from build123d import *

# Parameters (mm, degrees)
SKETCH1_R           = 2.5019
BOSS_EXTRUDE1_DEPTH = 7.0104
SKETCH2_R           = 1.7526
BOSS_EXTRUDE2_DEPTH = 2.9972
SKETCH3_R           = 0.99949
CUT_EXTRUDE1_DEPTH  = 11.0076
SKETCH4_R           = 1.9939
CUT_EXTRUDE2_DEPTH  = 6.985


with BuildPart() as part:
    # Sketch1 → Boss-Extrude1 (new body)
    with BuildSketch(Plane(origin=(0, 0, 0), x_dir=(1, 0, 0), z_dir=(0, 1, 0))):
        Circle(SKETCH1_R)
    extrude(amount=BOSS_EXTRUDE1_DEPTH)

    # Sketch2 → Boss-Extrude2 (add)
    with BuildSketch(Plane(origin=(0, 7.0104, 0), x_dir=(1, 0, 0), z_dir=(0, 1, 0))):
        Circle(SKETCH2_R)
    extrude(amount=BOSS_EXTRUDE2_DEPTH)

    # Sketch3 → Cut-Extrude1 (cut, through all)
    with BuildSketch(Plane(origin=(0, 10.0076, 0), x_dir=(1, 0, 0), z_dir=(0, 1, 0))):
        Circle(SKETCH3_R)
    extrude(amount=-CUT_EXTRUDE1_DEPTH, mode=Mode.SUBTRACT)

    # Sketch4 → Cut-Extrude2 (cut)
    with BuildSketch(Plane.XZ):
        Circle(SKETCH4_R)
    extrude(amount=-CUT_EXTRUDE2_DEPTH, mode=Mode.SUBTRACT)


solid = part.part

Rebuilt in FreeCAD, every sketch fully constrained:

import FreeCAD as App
import Part
import Sketcher
Q = App.Units.Quantity

doc = App.newDocument("Part")
params = doc.addObject("Spreadsheet::Sheet", "Params")
for row, (alias, value) in enumerate([
    ("sketch1_diameter", "0.197 in"),
    ("pad1_length", "0.276 in"),
    ("sketch2_diameter", "0.138 in"),
    ("pad2_length", "0.118 in"),
    ("sketch4_diameter", "0.157 in"),
    ("pocket2_length", "0.275 in"),
], start=1):
    params.set(f"A{row}", alias)
    params.set(f"B{row}", "=" + value)
    params.setAlias(f"B{row}", alias)

body = doc.addObject("PartDesign::Body", "Body")

sketch1 = doc.addObject("Sketcher::SketchObject", "Sketch")
body.addObject(sketch1)
sketch1.AttachmentSupport = (doc.XZ_Plane, [""])
sketch1.MapMode = "FlatFace"
sketch1.addGeometry(Part.Circle(App.Vector(0, 0, 0), App.Vector(0, 0, 1), 2.5), False)
sketch1.addConstraint([
    Sketcher.Constraint("Coincident", 0, 3, -1, 1),
    Sketcher.Constraint("Diameter", 0, Q("0.197 in")),
])
sketch1.setExpression("Constraints[1]", "Params.sketch1_diameter")
pad1 = doc.addObject("PartDesign::Pad", "Pad")
body.addObject(pad1)
pad1.Profile = sketch1
pad1.setExpression("Length", "Params.pad1_length")
pad1.Reversed = True

sketch2 = doc.addObject("Sketcher::SketchObject", "Sketch001")
body.addObject(sketch2)
sketch2.AttachmentSupport = (doc.XZ_Plane, [""])
sketch2.MapMode = "FlatFace"
sketch2.AttachmentOffset = App.Placement(App.Vector(0, 0, -0.276 * 25.4), App.Rotation())
sketch2.addGeometry(Part.Circle(App.Vector(0, 0, 0), App.Vector(0, 0, 1), 1.8), False)
sketch2.addConstraint([
    Sketcher.Constraint("Coincident", 0, 3, -1, 1),
    Sketcher.Constraint("Diameter", 0, Q("0.138 in")),
])
sketch2.setExpression("Constraints[1]", "Params.sketch2_diameter")
pad2 = doc.addObject("PartDesign::Pad", "Pad001")
body.addObject(pad2)
pad2.Profile = sketch2
pad2.setExpression("Length", "Params.pad2_length")
pad2.Reversed = True

sketch3 = doc.addObject("Sketcher::SketchObject", "Sketch002")
body.addObject(sketch3)
sketch3.AttachmentSupport = (doc.XZ_Plane, [""])
sketch3.MapMode = "FlatFace"
sketch3.AttachmentOffset = App.Placement(App.Vector(0, 0, -0.394 * 25.4), App.Rotation())
sketch3.addGeometry(Part.Circle(App.Vector(0, 0, 0), App.Vector(0, 0, 1), 1), False)
sketch3.addConstraint([
    Sketcher.Constraint("Coincident", 0, 3, -1, 1),
    Sketcher.Constraint("Diameter", 0, Q("0.0787 in")),
])
pocket1 = doc.addObject("PartDesign::Pocket", "Pocket")
body.addObject(pocket1)
pocket1.Profile = sketch3
pocket1.Type = "ThroughAll"
pocket1.Reversed = True

sketch4 = doc.addObject("Sketcher::SketchObject", "Sketch003")
body.addObject(sketch4)
sketch4.AttachmentSupport = (doc.XZ_Plane, [""])
sketch4.MapMode = "FlatFace"
sketch4.addGeometry(Part.Circle(App.Vector(0, 0, 0), App.Vector(0, 0, 1), 2), False)
sketch4.addConstraint([
    Sketcher.Constraint("Coincident", 0, 3, -1, 1),
    Sketcher.Constraint("Diameter", 0, Q("0.157 in")),
])
sketch4.setExpression("Constraints[1]", "Params.sketch4_diameter")
pocket2 = doc.addObject("PartDesign::Pocket", "Pocket001")
body.addObject(pocket2)
pocket2.Profile = sketch4
pocket2.setExpression("Length", "Params.pocket2_length")

doc.recompute()
